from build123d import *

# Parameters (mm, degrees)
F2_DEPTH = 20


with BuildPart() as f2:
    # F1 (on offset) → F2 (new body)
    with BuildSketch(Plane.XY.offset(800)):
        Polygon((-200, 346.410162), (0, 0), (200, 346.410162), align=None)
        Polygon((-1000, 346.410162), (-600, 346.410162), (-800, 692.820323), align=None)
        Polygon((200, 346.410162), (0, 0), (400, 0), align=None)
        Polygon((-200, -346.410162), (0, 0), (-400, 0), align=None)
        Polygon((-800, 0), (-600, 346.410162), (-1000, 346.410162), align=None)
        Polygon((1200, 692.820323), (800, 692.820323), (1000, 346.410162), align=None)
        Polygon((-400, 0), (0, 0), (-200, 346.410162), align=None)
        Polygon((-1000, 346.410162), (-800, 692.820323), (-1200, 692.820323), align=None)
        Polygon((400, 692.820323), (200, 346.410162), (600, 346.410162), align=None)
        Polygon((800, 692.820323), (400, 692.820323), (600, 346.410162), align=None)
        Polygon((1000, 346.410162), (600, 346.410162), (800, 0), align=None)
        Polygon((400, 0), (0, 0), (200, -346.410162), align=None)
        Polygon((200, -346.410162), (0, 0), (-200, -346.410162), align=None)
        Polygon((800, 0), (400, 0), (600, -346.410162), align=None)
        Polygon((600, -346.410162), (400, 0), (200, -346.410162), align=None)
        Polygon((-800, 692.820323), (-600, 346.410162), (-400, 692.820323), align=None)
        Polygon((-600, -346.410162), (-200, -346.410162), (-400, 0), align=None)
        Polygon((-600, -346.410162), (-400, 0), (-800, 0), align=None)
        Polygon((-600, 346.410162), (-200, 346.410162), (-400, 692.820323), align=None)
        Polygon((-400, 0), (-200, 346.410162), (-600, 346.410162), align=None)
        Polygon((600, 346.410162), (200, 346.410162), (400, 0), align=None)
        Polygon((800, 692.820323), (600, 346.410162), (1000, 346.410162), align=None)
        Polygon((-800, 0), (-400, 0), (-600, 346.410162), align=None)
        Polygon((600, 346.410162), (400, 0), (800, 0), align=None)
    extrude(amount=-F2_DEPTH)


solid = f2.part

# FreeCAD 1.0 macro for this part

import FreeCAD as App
import Part
import Sketcher
Q = App.Units.Quantity


def add_polygon(sketch, points):
    """Adds a closed chain of lines whose ends are joined by coincident constraints."""
    first, n = sketch.GeometryCount, len(points)
    for a, b in zip(points, points[1:] + points[:1]):
        sketch.addGeometry(Part.LineSegment(App.Vector(*a, 0), App.Vector(*b, 0)), False)
    for i in range(n):
        sketch.addConstraint(Sketcher.Constraint("Coincident", first + i, 2, first + (i + 1) % n, 1))

doc = App.newDocument("Part")
params = doc.addObject("Spreadsheet::Sheet", "Params")
for row, (alias, value) in enumerate([
    ("sketch1_width", "800 mm"),
    ("sketch1_width2", "400 mm"),
    ("sketch1_width3", "1200 mm"),
    ("sketch1_length", "400 mm"),
    ("pad1_length", "20 mm"),
], start=1):
    params.set(f"A{row}", alias)
    params.set(f"B{row}", "=" + value)
    params.setAlias(f"B{row}", alias)

body = doc.addObject("PartDesign::Body", "Body")

sketch1 = body.newObject("Sketcher::SketchObject", "Sketch")
sketch1.AttachmentSupport = (doc.getObject("XY_Plane"), [""])
sketch1.MapMode = "FlatFace"
sketch1.AttachmentOffset = App.Placement(App.Vector(0, 0, 800), App.Rotation())
add_polygon(sketch1, [(600, -346.410162), (1000, 346.410162), (1200, 692.820323), (400, 692.820323), (200, 346.410162), (-200, 346.410162), (-400, 692.820323), (-1200, 692.820323), (-1000, 346.410162), (-600, -346.410162)])
sketch1.addConstraint(Sketcher.Constraint("Horizontal", 2))
sketch1.addConstraint(Sketcher.Constraint("Horizontal", 4))
sketch1.addConstraint(Sketcher.Constraint("Horizontal", 6))
sketch1.addConstraint(Sketcher.Constraint("Horizontal", 9))
sketch1.addConstraint(Sketcher.Constraint("Symmetric", 2, 2, 5, 2, -2))
sketch1.addConstraint(Sketcher.Constraint("Symmetric", 0, 2, 7, 2, -2))
sketch1.addConstraint(Sketcher.Constraint("Parallel", 0, 1))
sketch1.addConstraint(Sketcher.Constraint("Parallel", 1, 3))
sketch1.addConstraint(Sketcher.Constraint("Parallel", 5, 7))
sketch1.addConstraint(Sketcher.Constraint("Parallel", 7, 8))
sketch1.addConstraint(Sketcher.Constraint("Horizontal", 0, 2, 3, 2))
sketch1.addConstraint(Sketcher.Constraint("Equal", 2, 6))
sketch1.addConstraint(Sketcher.Constraint("DistanceX", 2, 2, 2, 1, 800.0))
sketch1.addConstraint(Sketcher.Constraint("DistanceX", 4, 2, 4, 1, 400.0))
sketch1.addConstraint(Sketcher.Constraint("DistanceX", 9, 1, 9, 2, 1200.0))
sketch1.addConstraint(Sketcher.Constraint("Angle", 0, Q("60 deg")))
sketch1.addConstraint(Sketcher.Constraint("Distance", 1, 400.0))
sketch1.addConstraint(Sketcher.Constraint("DistanceY", -1, 1, 0, 2, 346.410162))
sketch1.setExpression("Constraints[22]", "Params.sketch1_width")
sketch1.setExpression("Constraints[23]", "Params.sketch1_width2")
sketch1.setExpression("Constraints[24]", "Params.sketch1_width3")
sketch1.setExpression("Constraints[26]", "Params.sketch1_length")
pad1 = body.newObject("PartDesign::Pad", "Pad")
pad1.Profile = sketch1
pad1.setExpression("Length", "Params.pad1_length")
pad1.Reversed = True

doc.recompute()
